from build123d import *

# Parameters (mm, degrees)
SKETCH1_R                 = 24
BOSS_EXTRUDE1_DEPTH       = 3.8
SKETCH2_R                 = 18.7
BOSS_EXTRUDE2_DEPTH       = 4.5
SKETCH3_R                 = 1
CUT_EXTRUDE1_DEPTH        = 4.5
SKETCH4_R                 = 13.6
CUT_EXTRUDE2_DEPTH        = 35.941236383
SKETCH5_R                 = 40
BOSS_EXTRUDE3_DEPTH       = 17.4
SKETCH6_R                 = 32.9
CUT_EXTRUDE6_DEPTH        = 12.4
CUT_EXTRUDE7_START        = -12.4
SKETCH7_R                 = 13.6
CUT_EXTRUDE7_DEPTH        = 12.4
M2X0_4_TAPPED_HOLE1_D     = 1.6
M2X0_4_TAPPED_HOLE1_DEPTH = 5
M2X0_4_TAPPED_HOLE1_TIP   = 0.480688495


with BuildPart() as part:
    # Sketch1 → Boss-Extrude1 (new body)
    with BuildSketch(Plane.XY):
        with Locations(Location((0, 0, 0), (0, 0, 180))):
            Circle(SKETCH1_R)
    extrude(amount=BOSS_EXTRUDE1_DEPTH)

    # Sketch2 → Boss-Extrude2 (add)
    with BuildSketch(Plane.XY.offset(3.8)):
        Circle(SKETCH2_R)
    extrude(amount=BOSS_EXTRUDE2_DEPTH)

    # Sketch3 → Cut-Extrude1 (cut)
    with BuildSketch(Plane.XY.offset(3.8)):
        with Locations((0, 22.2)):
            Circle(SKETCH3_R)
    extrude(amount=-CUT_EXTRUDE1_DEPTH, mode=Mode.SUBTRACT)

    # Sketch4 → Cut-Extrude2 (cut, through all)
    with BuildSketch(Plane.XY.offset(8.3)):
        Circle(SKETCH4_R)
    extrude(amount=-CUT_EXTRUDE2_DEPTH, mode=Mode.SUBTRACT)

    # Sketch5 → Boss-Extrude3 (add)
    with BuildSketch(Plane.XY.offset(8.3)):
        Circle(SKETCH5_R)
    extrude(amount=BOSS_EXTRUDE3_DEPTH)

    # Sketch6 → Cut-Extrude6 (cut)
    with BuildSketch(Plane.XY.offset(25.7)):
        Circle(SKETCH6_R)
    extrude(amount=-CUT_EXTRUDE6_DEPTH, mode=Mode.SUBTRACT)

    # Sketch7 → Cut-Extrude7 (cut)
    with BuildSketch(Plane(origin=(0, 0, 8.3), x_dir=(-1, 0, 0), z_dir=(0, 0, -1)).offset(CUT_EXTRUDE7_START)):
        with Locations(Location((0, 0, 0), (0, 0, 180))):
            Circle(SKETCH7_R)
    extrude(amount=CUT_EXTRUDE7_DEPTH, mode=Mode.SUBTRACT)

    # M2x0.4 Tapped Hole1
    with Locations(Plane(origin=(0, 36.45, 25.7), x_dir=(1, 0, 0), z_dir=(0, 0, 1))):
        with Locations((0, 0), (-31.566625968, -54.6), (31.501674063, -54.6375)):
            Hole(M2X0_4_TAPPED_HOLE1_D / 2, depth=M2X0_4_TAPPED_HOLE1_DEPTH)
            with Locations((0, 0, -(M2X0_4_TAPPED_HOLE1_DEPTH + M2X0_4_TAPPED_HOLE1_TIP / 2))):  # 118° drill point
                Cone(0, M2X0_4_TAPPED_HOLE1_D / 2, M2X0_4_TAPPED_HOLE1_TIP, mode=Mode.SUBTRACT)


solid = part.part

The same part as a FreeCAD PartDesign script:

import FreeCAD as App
import Part
import Sketcher
Q = App.Units.Quantity

doc = App.newDocument("Part")
params = doc.addObject("Spreadsheet::Sheet", "Params")
for row, (alias, value) in enumerate([
    ("sketch1_diameter", "48 mm"),
    ("pad1_length", "3.8 mm"),
    ("sketch2_diameter", "37.4 mm"),
    ("pad2_length", "4.5 mm"),
    ("sketch3_diameter", "2 mm"),
    ("pocket1_length", "4.5 mm"),
    ("sketch4_diameter", "27.2 mm"),
    ("sketch5_diameter", "80 mm"),
    ("pad3_length", "17.4 mm"),
    ("sketch6_diameter", "65.8 mm"),
    ("pocket3_length", "12.4 mm"),
    ("sketch7_diameter", "27.2 mm"),
    ("pocket4_length", "12.4 mm"),
    ("sketch8_diameter", "1.6 mm"),
    ("hole_diameter", "1.6 mm"),
    ("hole_depth", "5 mm"),
], start=1):
    params.set(f"A{row}", alias)
    params.set(f"B{row}", "=" + value)
    params.setAlias(f"B{row}", alias)

body = doc.addObject("PartDesign::Body", "Body")

# Sketch on XY plane
sketch1 = body.newObject("Sketcher::SketchObject", "Sketch")
sketch1.AttachmentSupport = (doc.getObject("XY_Plane"), [""])
sketch1.MapMode = "FlatFace"
sketch1.addGeometry(Part.Circle(App.Vector(0, 0, 0), App.Vector(0, 0, 1), 24), False)
sketch1.addConstraint([
    Sketcher.Constraint("Coincident", 0, 3, -1, 1),
    Sketcher.Constraint("Diameter", 0, Q("48 mm")),
])
sketch1.setExpression("Constraints[1]", "Params.sketch1_diameter")
pad1 = body.newObject("PartDesign::Pad", "Pad")
pad1.Profile = sketch1
pad1.setExpression("Length", "Params.pad1_length")

# Sketch on XY plane
sketch2 = body.newObject("Sketcher::SketchObject", "Sketch001")
sketch2.AttachmentSupport = (doc.getObject("XY_Plane"), [""])
sketch2.MapMode = "FlatFace"
sketch2.AttachmentOffset = App.Placement(App.Vector(0, 0, 3.8), App.Rotation())
sketch2.addGeometry(Part.Circle(App.Vector(0, 0, 0), App.Vector(0, 0, 1), 18.7), False)
sketch2.addConstraint([
    Sketcher.Constraint("Coincident", 0, 3, -1, 1),
    Sketcher.Constraint("Diameter", 0, Q("37.4 mm")),
])
sketch2.setExpression("Constraints[1]", "Params.sketch2_diameter")
pad2 = body.newObject("PartDesign::Pad", "Pad001")
pad2.Profile = sketch2
pad2.setExpression("Length", "Params.pad2_length")

# Sketch on XY plane
sketch3 = body.newObject("Sketcher::SketchObject", "Sketch002")
sketch3.AttachmentSupport = (doc.getObject("XY_Plane"), [""])
sketch3.MapMode = "FlatFace"
sketch3.AttachmentOffset = App.Placement(App.Vector(0, 0, 3.8), App.Rotation())
sketch3.addGeometry(Part.Circle(App.Vector(0, 22.2, 0), App.Vector(0, 0, 1), 1), False)
sketch3.addConstraint([
    Sketcher.Constraint("PointOnObject", 0, 3, -2),
    Sketcher.Constraint("Diameter", 0, Q("2 mm")),
    Sketcher.Constraint("DistanceY", -1, 1, 0, 3, Q("22.2 mm")),
])
sketch3.setExpression("Constraints[1]", "Params.sketch3_diameter")
pocket1 = body.newObject("PartDesign::Pocket", "Pocket")
pocket1.Profile = sketch3
pocket1.setExpression("Length", "Params.pocket1_length")

# Sketch on XY plane
sketch4 = body.newObject("Sketcher::SketchObject", "Sketch003")
sketch4.AttachmentSupport = (doc.getObject("XY_Plane"), [""])
sketch4.MapMode = "FlatFace"
sketch4.AttachmentOffset = App.Placement(App.Vector(0, 0, 8.3), App.Rotation())
sketch4.addGeometry(Part.Circle(App.Vector(0, 0, 0), App.Vector(0, 0, 1), 13.6), False)
sketch4.addConstraint([
    Sketcher.Constraint("Coincident", 0, 3, -1, 1),
    Sketcher.Constraint("Diameter", 0, Q("27.2 mm")),
])
sketch4.setExpression("Constraints[1]", "Params.sketch4_diameter")
pocket2 = body.newObject("PartDesign::Pocket", "Pocket001")
pocket2.Profile = sketch4
pocket2.Type = "ThroughAll"

# Sketch on XY plane
sketch5 = body.newObject("Sketcher::SketchObject", "Sketch004")
sketch5.AttachmentSupport = (doc.getObject("XY_Plane"), [""])
sketch5.MapMode = "FlatFace"
sketch5.AttachmentOffset = App.Placement(App.Vector(0, 0, 8.3), App.Rotation())
sketch5.addGeometry(Part.Circle(App.Vector(0, 0, 0), App.Vector(0, 0, 1), 40), False)
sketch5.addConstraint([
    Sketcher.Constraint("Coincident", 0, 3, -1, 1),
    Sketcher.Constraint("Diameter", 0, Q("80 mm")),
])
sketch5.setExpression("Constraints[1]", "Params.sketch5_diameter")
pad3 = body.newObject("PartDesign::Pad", "Pad002")
pad3.Profile = sketch5
pad3.setExpression("Length", "Params.pad3_length")

# Sketch on XY plane
sketch6 = body.newObject("Sketcher::SketchObject", "Sketch005")
sketch6.AttachmentSupport = (doc.getObject("XY_Plane"), [""])
sketch6.MapMode = "FlatFace"
sketch6.AttachmentOffset = App.Placement(App.Vector(0, 0, 25.7), App.Rotation())
sketch6.addGeometry(Part.Circle(App.Vector(0, 0, 0), App.Vector(0, 0, 1), 32.9), False)
sketch6.addConstraint([
    Sketcher.Constraint("Coincident", 0, 3, -1, 1),
    Sketcher.Constraint("Diameter", 0, Q("65.8 mm")),
])
sketch6.setExpression("Constraints[1]", "Params.sketch6_diameter")
pocket3 = body.newObject("PartDesign::Pocket", "Pocket002")
pocket3.Profile = sketch6
pocket3.setExpression("Length", "Params.pocket3_length")

# Sketch on XY plane
sketch7 = body.newObject("Sketcher::SketchObject", "Sketch006")
sketch7.AttachmentSupport = (doc.getObject("XY_Plane"), [""])
sketch7.MapMode = "FlatFace"
sketch7.AttachmentOffset = App.Placement(App.Vector(0, 0, 20.7), App.Rotation())
sketch7.addGeometry(Part.Circle(App.Vector(0, 0, 0), App.Vector(0, 0, 1), 13.6), False)
sketch7.addConstraint([
    Sketcher.Constraint("Coincident", 0, 3, -1, 1),
    Sketcher.Constraint("Diameter", 0, Q("27.2 mm")),
])
sketch7.setExpression("Constraints[1]", "Params.sketch7_diameter")
pocket4 = body.newObject("PartDesign::Pocket", "Pocket003")
pocket4.Profile = sketch7
pocket4.setExpression("Length", "Params.pocket4_length")

# Sketch on XY plane
sketch8 = body.newObject("Sketcher::SketchObject", "Sketch007")
sketch8.AttachmentSupport = (doc.getObject("XY_Plane"), [""])
sketch8.MapMode = "FlatFace"
sketch8.AttachmentOffset = App.Placement(App.Vector(0, 0, 25.7), App.Rotation())
sketch8.addGeometry([
    Part.Circle(App.Vector(0, 36.45, 0), App.Vector(0, 0, 1), 0.8),
    Part.Circle(App.Vector(-31.566626, -18.15, 0), App.Vector(0, 0, 1), 0.8),
    Part.Circle(App.Vector(31.501674, -18.1875, 0), App.Vector(0, 0, 1), 0.8),
], False)
sketch8.addConstraint([
    Sketcher.Constraint("Equal", 0, 1),
    Sketcher.Constraint("Equal", 1, 2),
    Sketcher.Constraint("PointOnObject", 0, 3, -2),
    Sketcher.Constraint("Diameter", 0, Q("1.6 mm")),
    Sketcher.Constraint("DistanceY", 1, 3, 0, 3, Q("54.6 mm")),
    Sketcher.Constraint("DistanceY", -1, 1, 0, 3, Q("36.45 mm")),
    Sketcher.Constraint("DistanceY", 2, 3, -1, 1, Q("18.1875 mm")),
    Sketcher.Constraint("DistanceX", 1, 3, 2, 3, Q("63.0683 mm")),
    Sketcher.Constraint("DistanceX", 1, 3, -1, 1, Q("31.566626 mm")),
])
sketch8.setExpression("Constraints[3]", "Params.sketch8_diameter")
doc.recompute()
hole = body.newObject("PartDesign::Hole", "Hole")
hole.Profile = sketch8
hole.ThreadType = "None"
hole.setExpression("Diameter", "Params.hole_diameter")
hole.DepthType = "Dimension"
hole.setExpression("Depth", "Params.hole_depth")
hole.DrillPoint = "Angled"
hole.DrillPointAngle = 118

doc.recompute()
